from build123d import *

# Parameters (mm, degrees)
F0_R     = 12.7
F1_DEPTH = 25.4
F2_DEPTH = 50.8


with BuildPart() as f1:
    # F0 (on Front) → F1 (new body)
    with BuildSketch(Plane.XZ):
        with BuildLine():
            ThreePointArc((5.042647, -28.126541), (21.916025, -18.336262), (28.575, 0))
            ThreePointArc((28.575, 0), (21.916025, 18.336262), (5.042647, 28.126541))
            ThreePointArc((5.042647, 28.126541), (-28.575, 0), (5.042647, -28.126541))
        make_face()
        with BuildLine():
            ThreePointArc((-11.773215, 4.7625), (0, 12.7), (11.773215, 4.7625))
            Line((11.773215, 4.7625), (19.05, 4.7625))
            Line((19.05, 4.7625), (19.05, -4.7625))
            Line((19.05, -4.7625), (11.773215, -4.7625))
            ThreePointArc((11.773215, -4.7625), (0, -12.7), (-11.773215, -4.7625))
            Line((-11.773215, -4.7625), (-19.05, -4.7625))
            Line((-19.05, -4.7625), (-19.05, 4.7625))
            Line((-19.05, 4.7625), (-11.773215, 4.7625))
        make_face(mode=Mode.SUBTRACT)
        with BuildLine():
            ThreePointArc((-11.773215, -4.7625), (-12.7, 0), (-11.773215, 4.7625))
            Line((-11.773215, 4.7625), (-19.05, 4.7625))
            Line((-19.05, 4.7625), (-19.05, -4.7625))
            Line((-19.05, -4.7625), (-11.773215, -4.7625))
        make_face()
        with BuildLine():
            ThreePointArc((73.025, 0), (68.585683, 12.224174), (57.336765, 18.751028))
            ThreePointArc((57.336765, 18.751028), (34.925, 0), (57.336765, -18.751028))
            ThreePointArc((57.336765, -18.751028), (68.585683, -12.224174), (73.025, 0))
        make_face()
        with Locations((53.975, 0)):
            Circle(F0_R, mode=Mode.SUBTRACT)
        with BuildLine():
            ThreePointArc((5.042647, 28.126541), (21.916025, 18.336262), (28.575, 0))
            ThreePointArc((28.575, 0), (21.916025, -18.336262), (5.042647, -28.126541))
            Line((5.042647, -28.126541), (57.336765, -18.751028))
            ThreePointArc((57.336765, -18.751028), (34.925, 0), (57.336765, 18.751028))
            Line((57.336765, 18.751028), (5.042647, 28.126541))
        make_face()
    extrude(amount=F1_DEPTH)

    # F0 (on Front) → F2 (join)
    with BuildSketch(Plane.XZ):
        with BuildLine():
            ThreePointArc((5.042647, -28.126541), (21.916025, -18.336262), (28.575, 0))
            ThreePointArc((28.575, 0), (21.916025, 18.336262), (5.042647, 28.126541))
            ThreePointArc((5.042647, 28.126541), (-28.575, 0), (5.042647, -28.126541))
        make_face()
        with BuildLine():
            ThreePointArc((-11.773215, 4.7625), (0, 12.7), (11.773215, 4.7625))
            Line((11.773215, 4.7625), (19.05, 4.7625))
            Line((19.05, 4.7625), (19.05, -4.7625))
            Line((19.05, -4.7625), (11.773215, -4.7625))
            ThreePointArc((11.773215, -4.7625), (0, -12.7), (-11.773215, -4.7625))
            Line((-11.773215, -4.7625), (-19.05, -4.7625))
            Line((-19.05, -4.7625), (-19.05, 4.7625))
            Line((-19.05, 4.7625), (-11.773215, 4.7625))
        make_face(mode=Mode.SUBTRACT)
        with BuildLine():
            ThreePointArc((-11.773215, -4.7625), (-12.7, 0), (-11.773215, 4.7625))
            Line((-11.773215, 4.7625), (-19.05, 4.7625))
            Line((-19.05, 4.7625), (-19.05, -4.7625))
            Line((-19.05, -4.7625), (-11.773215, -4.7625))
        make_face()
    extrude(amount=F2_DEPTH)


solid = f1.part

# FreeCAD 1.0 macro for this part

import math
import FreeCAD as App
import Part
import Sketcher
Q = App.Units.Quantity

doc = App.newDocument("Part")
body = doc.addObject("PartDesign::Body", "Body")

sketch1 = body.newObject("Sketcher::SketchObject", "Sketch")
sketch1.AttachmentSupport = (doc.getObject("XZ_Plane"), [""])
sketch1.MapMode = "FlatFace"
sketch1.addGeometry([
    Part.ArcOfCircle(Part.Circle(App.Vector(0, 0, 0), App.Vector(0, 0, 1), 28.575), math.radians(79.835751), math.radians(280.164249)),
    Part.LineSegment(App.Vector(5.042647, -28.126541, 0), App.Vector(57.336765, -18.751028, 0)),
    Part.ArcOfCircle(Part.Circle(App.Vector(53.974998, 0.000001, 0), App.Vector(0, 0, 1), 19.050002), math.radians(-79.835746), math.radians(-0.000004)),
    Part.ArcOfCircle(Part.Circle(App.Vector(53.974998, -0.000001, 0), App.Vector(0, 0, 1), 19.050002), math.radians(0.000004), math.radians(79.835746)),
    Part.LineSegment(App.Vector(57.336765, 18.751028, 0), App.Vector(5.042647, 28.126541, 0)),
    Part.ArcOfCircle(Part.Circle(App.Vector(0, 0, 0), App.Vector(0, 0, 1), 12.7), math.radians(-157.975688), math.radians(-22.024312)),
    Part.ArcOfCircle(Part.Circle(App.Vector(-0.000001, 0, 0), App.Vector(0, 0, 1), 12.699999), math.radians(157.975685), math.radians(202.024315)),
    Part.ArcOfCircle(Part.Circle(App.Vector(0, 0, 0), App.Vector(0, 0, 1), 12.7), math.radians(22.024312), math.radians(157.975688)),
    Part.LineSegment(App.Vector(11.773215, 4.7625, 0), App.Vector(19.05, 4.7625, 0)),
    Part.LineSegment(App.Vector(19.05, 4.7625, 0), App.Vector(19.05, -4.7625, 0)),
    Part.LineSegment(App.Vector(19.05, -4.7625, 0), App.Vector(11.773215, -4.7625, 0)),
    Part.Circle(App.Vector(53.975, 0, 0), App.Vector(0, 0, 1), 12.7),
], False)
sketch1.addConstraint([
    Sketcher.Constraint("Tangent", 0, 2, 1, 1),
    Sketcher.Constraint("Tangent", 1, 2, 2, 1),
    Sketcher.Constraint("Tangent", 2, 2, 3, 1),
    Sketcher.Constraint("Tangent", 3, 2, 4, 1),
    Sketcher.Constraint("Tangent", 4, 2, 0, 1),
    Sketcher.Constraint("Tangent", 5, 1, 6, 2),
    Sketcher.Constraint("Tangent", 6, 1, 7, 2),
    Sketcher.Constraint("Coincident", 7, 1, 8, 1),
    Sketcher.Constraint("Coincident", 8, 2, 9, 1),
    Sketcher.Constraint("Coincident", 9, 2, 10, 1),
    Sketcher.Constraint("Coincident", 10, 2, 5, 2),
    Sketcher.Constraint("Horizontal", 8),
    Sketcher.Constraint("Vertical", 9),
    Sketcher.Constraint("Horizontal", 10),
    Sketcher.Constraint("Coincident", 0, 3, -1, 1),
    Sketcher.Constraint("Coincident", 5, 3, -1, 1),
    Sketcher.Constraint("Coincident", 7, 3, -1, 1),
    Sketcher.Constraint("Coincident", 11, 3, 2, 3),
    Sketcher.Constraint("Equal", 2, 3),
    Sketcher.Constraint("Equal", 7, 11),
    Sketcher.Constraint("PointOnObject", 2, 3, -1),
    Sketcher.Constraint("PointOnObject", 2, 2, -1),
    Sketcher.Constraint("Horizontal", 6, 1, 7, 1),
    Sketcher.Constraint("Horizontal", 5, 1, 9, 2),
    Sketcher.Constraint("Vertical", 5, 1, 6, 1),
    Sketcher.Constraint("Diameter", 11, Q("1 in")),
    Sketcher.Constraint("Radius", 2, Q("0.7500001 in")),
    Sketcher.Constraint("Radius", 0, Q("1.125 in")),
    Sketcher.Constraint("DistanceY", 9, 2, 9, 1, Q("0.375 in")),
    Sketcher.Constraint("DistanceX", -1, 1, 8, 2, Q("0.75 in")),
    Sketcher.Constraint("DistanceX", -1, 1, 2, 3, Q("2.1249999 in")),
])
pad1 = body.newObject("PartDesign::Pad", "Pad")
pad1.Profile = sketch1
pad1.Length = Q("1 in")

sketch2 = body.newObject("Sketcher::SketchObject", "Sketch001")
sketch2.AttachmentSupport = (doc.getObject("XZ_Plane"), [""])
sketch2.MapMode = "FlatFace"
sketch2.addGeometry([
    Part.ArcOfCircle(Part.Circle(App.Vector(0.000003, -0.000002, 0), App.Vector(0, 0, 1), 28.574997), math.radians(-79.835756), math.radians(0.000004)),
    Part.ArcOfCircle(Part.Circle(App.Vector(0.000003, 0.000002, 0), App.Vector(0, 0, 1), 28.574997), math.radians(-0.000004), math.radians(79.835756)),
    Part.ArcOfCircle(Part.Circle(App.Vector(0, 0, 0), App.Vector(0, 0, 1), 28.575), math.radians(79.835751), math.radians(280.164249)),
    Part.ArcOfCircle(Part.Circle(App.Vector(0, 0, 0), App.Vector(0, 0, 1), 12.7), math.radians(-157.975688), math.radians(-22.024312)),
    Part.ArcOfCircle(Part.Circle(App.Vector(-0.000001, 0, 0), App.Vector(0, 0, 1), 12.699999), math.radians(157.975685), math.radians(202.024315)),
    Part.ArcOfCircle(Part.Circle(App.Vector(0, 0, 0), App.Vector(0, 0, 1), 12.7), math.radians(22.024312), math.radians(157.975688)),
    Part.LineSegment(App.Vector(11.773215, 4.7625, 0), App.Vector(19.05, 4.7625, 0)),
    Part.LineSegment(App.Vector(19.05, 4.7625, 0), App.Vector(19.05, -4.7625, 0)),
    Part.LineSegment(App.Vector(19.05, -4.7625, 0), App.Vector(11.773215, -4.7625, 0)),
], False)
sketch2.addConstraint([
    Sketcher.Constraint("Tangent", 0, 2, 1, 1),
    Sketcher.Constraint("Tangent", 1, 2, 2, 1),
    Sketcher.Constraint("Tangent", 2, 2, 0, 1),
    Sketcher.Constraint("Tangent", 3, 1, 4, 2),
    Sketcher.Constraint("Tangent", 4, 1, 5, 2),
    Sketcher.Constraint("Coincident", 5, 1, 6, 1),
    Sketcher.Constraint("Coincident", 6, 2, 7, 1),
    Sketcher.Constraint("Coincident", 7, 2, 8, 1),
    Sketcher.Constraint("Coincident", 8, 2, 3, 2),
    Sketcher.Constraint("Horizontal", 6),
    Sketcher.Constraint("Vertical", 7),
    Sketcher.Constraint("Horizontal", 8),
    Sketcher.Constraint("Coincident", 0, 3, -1, 1),
    Sketcher.Constraint("Coincident", 3, 3, -1, 1),
    Sketcher.Constraint("Coincident", 5, 3, -1, 1),
    Sketcher.Constraint("PointOnObject", 0, 2, -1),
    Sketcher.Constraint("Horizontal", 4, 1, 5, 1),
    Sketcher.Constraint("Horizontal", 3, 1, 7, 2),
    Sketcher.Constraint("Vertical", 1, 2, 2, 2),
    Sketcher.Constraint("Vertical", 3, 1, 4, 1),
    Sketcher.Constraint("Radius", 3, Q("0.5 in")),
    Sketcher.Constraint("Radius", 0, Q("1.1249999 in")),
    Sketcher.Constraint("DistanceY", 7, 2, 7, 1, Q("0.375 in")),
    Sketcher.Constraint("DistanceX", -1, 1, 6, 2, Q("0.75 in")),
    Sketcher.Constraint("DistanceY", -1, 1, 1, 2, 28.126541),
])
pad2 = body.newObject("PartDesign::Pad", "Pad001")
pad2.Profile = sketch2
pad2.Length = Q("2 in")

doc.recompute()
